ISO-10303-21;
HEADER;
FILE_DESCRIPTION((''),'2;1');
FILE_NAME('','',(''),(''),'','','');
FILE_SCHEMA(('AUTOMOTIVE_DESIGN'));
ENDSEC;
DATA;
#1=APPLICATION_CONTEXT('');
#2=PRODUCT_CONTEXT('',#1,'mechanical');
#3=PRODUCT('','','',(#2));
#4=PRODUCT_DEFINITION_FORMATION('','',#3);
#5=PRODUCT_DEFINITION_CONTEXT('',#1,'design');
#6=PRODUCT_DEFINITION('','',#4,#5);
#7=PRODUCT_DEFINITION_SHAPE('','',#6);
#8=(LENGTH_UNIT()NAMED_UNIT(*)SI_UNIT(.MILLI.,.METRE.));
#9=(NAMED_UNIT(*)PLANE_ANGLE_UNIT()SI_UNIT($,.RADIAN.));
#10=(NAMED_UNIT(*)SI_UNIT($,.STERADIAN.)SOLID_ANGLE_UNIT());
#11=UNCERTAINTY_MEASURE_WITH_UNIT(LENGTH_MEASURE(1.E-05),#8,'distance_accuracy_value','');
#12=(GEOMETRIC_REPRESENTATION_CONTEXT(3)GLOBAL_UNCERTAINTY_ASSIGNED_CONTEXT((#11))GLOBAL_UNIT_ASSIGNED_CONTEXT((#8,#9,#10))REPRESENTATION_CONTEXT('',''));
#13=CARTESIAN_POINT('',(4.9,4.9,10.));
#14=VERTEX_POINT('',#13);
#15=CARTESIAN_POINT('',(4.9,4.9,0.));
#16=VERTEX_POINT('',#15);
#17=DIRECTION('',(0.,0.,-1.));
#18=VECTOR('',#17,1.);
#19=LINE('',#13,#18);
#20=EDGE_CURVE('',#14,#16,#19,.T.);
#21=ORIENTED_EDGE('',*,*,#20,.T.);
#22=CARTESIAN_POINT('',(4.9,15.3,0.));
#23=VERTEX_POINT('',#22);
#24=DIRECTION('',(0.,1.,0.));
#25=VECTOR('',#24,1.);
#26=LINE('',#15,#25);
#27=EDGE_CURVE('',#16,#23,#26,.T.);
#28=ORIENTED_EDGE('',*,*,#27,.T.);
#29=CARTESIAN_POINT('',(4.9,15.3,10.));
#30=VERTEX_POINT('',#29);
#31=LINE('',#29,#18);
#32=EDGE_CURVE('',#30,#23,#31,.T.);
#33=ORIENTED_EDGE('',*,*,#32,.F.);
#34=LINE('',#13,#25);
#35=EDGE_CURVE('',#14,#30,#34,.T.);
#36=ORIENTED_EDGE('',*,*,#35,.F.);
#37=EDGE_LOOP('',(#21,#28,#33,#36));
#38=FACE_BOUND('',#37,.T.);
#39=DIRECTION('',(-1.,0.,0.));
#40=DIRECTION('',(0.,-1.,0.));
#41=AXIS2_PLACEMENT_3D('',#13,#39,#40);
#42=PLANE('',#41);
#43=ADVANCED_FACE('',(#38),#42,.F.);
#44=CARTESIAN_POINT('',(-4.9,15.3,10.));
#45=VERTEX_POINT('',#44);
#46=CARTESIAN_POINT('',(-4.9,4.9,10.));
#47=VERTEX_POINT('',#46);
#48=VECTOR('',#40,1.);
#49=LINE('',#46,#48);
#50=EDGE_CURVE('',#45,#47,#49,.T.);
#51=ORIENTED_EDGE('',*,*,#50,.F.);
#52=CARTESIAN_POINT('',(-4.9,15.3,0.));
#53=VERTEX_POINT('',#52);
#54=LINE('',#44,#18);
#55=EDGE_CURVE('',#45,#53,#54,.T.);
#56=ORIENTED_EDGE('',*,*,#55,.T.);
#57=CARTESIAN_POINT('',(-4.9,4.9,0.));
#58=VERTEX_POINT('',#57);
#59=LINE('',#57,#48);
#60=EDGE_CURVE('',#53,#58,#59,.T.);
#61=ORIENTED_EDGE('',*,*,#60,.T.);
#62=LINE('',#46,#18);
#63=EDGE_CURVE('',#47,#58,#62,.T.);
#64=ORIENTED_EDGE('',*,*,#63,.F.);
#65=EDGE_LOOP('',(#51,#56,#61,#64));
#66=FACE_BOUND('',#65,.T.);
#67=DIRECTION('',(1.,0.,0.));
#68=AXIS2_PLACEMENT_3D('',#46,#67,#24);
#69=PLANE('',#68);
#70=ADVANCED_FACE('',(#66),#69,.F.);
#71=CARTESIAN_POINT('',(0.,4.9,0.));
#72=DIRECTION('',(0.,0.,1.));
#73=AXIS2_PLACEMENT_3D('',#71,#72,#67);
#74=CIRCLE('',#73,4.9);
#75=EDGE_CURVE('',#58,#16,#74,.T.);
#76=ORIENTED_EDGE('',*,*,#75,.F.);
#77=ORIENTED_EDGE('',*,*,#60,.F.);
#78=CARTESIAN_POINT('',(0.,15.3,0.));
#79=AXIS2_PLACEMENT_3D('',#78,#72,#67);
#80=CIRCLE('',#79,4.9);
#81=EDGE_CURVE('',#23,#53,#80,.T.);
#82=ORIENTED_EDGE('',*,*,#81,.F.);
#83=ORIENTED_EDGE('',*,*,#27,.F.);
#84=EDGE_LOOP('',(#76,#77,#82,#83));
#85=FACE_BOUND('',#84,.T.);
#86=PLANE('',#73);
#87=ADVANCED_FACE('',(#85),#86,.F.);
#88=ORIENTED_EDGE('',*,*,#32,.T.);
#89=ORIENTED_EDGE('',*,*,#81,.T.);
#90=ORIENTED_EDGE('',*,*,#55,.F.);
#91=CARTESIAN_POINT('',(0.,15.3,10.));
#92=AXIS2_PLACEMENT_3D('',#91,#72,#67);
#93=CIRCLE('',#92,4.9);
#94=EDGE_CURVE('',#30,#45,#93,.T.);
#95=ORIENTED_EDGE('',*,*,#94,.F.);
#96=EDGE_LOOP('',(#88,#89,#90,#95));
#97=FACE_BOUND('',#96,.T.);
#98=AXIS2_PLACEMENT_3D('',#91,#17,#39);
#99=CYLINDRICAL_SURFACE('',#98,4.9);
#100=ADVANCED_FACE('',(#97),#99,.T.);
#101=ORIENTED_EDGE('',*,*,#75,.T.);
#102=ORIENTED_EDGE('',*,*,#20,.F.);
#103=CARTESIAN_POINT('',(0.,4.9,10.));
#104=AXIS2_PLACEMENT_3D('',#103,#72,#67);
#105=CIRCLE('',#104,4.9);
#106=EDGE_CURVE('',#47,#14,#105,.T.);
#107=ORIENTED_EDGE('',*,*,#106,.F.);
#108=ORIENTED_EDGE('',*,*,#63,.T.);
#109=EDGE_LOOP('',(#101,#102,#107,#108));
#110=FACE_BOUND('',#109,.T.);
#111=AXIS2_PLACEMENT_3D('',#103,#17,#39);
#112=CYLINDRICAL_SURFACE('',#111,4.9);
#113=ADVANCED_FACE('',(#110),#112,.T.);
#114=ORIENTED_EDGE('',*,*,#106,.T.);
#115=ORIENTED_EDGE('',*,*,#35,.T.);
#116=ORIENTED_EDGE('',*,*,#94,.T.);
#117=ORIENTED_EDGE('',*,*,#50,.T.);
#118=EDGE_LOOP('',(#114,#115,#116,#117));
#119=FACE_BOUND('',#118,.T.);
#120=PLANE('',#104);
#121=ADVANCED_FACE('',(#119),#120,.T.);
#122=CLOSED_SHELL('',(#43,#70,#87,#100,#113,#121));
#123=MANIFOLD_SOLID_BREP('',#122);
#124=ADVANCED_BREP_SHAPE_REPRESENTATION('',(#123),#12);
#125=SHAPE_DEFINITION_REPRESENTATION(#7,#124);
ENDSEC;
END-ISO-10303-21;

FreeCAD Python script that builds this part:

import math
import FreeCAD as App
import Part
import Sketcher
from FreeCAD import Vector
Q = App.Units.Quantity

doc = App.newDocument("Part")
body = doc.addObject("PartDesign::Body", "Body")

sketch1 = body.newObject("Sketcher::SketchObject", "Sketch")
sketch1.AttachmentSupport = (doc.getObject("XY_Plane"), [""])
sketch1.MapMode = "FlatFace"
sketch1.addGeometry([
    Part.LineSegment(Vector(-4.9, 15.3, 0), Vector(-4.9, 4.9, 0)),
    Part.ArcOfCircle(Part.Circle(Vector(0, 4.9, 0), Vector(0, 0, 1), 4.9), math.radians(180), math.radians(360)),
    Part.LineSegment(Vector(4.9, 4.9, 0), Vector(4.9, 15.3, 0)),
    Part.ArcOfCircle(Part.Circle(Vector(0, 15.3, 0), Vector(0, 0, 1), 4.9), math.radians(0), math.radians(180)),
], False)
sketch1.addConstraint([
    Sketcher.Constraint("Tangent", 0, 2, 1, 1),
    Sketcher.Constraint("Tangent", 1, 2, 2, 1),
    Sketcher.Constraint("Tangent", 2, 2, 3, 1),
    Sketcher.Constraint("Tangent", 3, 2, 0, 1),
    Sketcher.Constraint("Vertical", 0),
    Sketcher.Constraint("Vertical", 2),
    Sketcher.Constraint("PointOnObject", 1, 3, -2),
    Sketcher.Constraint("Radius", 1, Q("4.9 mm")),
    Sketcher.Constraint("DistanceY", 0, 2, 0, 1, Q("10.4 mm")),
    Sketcher.Constraint("DistanceY", -1, 1, 1, 3, Q("4.9 mm")),
])
pad1 = body.newObject("PartDesign::Pad", "Pad")
pad1.Profile = sketch1
pad1.Length = 10

doc.recompute()
